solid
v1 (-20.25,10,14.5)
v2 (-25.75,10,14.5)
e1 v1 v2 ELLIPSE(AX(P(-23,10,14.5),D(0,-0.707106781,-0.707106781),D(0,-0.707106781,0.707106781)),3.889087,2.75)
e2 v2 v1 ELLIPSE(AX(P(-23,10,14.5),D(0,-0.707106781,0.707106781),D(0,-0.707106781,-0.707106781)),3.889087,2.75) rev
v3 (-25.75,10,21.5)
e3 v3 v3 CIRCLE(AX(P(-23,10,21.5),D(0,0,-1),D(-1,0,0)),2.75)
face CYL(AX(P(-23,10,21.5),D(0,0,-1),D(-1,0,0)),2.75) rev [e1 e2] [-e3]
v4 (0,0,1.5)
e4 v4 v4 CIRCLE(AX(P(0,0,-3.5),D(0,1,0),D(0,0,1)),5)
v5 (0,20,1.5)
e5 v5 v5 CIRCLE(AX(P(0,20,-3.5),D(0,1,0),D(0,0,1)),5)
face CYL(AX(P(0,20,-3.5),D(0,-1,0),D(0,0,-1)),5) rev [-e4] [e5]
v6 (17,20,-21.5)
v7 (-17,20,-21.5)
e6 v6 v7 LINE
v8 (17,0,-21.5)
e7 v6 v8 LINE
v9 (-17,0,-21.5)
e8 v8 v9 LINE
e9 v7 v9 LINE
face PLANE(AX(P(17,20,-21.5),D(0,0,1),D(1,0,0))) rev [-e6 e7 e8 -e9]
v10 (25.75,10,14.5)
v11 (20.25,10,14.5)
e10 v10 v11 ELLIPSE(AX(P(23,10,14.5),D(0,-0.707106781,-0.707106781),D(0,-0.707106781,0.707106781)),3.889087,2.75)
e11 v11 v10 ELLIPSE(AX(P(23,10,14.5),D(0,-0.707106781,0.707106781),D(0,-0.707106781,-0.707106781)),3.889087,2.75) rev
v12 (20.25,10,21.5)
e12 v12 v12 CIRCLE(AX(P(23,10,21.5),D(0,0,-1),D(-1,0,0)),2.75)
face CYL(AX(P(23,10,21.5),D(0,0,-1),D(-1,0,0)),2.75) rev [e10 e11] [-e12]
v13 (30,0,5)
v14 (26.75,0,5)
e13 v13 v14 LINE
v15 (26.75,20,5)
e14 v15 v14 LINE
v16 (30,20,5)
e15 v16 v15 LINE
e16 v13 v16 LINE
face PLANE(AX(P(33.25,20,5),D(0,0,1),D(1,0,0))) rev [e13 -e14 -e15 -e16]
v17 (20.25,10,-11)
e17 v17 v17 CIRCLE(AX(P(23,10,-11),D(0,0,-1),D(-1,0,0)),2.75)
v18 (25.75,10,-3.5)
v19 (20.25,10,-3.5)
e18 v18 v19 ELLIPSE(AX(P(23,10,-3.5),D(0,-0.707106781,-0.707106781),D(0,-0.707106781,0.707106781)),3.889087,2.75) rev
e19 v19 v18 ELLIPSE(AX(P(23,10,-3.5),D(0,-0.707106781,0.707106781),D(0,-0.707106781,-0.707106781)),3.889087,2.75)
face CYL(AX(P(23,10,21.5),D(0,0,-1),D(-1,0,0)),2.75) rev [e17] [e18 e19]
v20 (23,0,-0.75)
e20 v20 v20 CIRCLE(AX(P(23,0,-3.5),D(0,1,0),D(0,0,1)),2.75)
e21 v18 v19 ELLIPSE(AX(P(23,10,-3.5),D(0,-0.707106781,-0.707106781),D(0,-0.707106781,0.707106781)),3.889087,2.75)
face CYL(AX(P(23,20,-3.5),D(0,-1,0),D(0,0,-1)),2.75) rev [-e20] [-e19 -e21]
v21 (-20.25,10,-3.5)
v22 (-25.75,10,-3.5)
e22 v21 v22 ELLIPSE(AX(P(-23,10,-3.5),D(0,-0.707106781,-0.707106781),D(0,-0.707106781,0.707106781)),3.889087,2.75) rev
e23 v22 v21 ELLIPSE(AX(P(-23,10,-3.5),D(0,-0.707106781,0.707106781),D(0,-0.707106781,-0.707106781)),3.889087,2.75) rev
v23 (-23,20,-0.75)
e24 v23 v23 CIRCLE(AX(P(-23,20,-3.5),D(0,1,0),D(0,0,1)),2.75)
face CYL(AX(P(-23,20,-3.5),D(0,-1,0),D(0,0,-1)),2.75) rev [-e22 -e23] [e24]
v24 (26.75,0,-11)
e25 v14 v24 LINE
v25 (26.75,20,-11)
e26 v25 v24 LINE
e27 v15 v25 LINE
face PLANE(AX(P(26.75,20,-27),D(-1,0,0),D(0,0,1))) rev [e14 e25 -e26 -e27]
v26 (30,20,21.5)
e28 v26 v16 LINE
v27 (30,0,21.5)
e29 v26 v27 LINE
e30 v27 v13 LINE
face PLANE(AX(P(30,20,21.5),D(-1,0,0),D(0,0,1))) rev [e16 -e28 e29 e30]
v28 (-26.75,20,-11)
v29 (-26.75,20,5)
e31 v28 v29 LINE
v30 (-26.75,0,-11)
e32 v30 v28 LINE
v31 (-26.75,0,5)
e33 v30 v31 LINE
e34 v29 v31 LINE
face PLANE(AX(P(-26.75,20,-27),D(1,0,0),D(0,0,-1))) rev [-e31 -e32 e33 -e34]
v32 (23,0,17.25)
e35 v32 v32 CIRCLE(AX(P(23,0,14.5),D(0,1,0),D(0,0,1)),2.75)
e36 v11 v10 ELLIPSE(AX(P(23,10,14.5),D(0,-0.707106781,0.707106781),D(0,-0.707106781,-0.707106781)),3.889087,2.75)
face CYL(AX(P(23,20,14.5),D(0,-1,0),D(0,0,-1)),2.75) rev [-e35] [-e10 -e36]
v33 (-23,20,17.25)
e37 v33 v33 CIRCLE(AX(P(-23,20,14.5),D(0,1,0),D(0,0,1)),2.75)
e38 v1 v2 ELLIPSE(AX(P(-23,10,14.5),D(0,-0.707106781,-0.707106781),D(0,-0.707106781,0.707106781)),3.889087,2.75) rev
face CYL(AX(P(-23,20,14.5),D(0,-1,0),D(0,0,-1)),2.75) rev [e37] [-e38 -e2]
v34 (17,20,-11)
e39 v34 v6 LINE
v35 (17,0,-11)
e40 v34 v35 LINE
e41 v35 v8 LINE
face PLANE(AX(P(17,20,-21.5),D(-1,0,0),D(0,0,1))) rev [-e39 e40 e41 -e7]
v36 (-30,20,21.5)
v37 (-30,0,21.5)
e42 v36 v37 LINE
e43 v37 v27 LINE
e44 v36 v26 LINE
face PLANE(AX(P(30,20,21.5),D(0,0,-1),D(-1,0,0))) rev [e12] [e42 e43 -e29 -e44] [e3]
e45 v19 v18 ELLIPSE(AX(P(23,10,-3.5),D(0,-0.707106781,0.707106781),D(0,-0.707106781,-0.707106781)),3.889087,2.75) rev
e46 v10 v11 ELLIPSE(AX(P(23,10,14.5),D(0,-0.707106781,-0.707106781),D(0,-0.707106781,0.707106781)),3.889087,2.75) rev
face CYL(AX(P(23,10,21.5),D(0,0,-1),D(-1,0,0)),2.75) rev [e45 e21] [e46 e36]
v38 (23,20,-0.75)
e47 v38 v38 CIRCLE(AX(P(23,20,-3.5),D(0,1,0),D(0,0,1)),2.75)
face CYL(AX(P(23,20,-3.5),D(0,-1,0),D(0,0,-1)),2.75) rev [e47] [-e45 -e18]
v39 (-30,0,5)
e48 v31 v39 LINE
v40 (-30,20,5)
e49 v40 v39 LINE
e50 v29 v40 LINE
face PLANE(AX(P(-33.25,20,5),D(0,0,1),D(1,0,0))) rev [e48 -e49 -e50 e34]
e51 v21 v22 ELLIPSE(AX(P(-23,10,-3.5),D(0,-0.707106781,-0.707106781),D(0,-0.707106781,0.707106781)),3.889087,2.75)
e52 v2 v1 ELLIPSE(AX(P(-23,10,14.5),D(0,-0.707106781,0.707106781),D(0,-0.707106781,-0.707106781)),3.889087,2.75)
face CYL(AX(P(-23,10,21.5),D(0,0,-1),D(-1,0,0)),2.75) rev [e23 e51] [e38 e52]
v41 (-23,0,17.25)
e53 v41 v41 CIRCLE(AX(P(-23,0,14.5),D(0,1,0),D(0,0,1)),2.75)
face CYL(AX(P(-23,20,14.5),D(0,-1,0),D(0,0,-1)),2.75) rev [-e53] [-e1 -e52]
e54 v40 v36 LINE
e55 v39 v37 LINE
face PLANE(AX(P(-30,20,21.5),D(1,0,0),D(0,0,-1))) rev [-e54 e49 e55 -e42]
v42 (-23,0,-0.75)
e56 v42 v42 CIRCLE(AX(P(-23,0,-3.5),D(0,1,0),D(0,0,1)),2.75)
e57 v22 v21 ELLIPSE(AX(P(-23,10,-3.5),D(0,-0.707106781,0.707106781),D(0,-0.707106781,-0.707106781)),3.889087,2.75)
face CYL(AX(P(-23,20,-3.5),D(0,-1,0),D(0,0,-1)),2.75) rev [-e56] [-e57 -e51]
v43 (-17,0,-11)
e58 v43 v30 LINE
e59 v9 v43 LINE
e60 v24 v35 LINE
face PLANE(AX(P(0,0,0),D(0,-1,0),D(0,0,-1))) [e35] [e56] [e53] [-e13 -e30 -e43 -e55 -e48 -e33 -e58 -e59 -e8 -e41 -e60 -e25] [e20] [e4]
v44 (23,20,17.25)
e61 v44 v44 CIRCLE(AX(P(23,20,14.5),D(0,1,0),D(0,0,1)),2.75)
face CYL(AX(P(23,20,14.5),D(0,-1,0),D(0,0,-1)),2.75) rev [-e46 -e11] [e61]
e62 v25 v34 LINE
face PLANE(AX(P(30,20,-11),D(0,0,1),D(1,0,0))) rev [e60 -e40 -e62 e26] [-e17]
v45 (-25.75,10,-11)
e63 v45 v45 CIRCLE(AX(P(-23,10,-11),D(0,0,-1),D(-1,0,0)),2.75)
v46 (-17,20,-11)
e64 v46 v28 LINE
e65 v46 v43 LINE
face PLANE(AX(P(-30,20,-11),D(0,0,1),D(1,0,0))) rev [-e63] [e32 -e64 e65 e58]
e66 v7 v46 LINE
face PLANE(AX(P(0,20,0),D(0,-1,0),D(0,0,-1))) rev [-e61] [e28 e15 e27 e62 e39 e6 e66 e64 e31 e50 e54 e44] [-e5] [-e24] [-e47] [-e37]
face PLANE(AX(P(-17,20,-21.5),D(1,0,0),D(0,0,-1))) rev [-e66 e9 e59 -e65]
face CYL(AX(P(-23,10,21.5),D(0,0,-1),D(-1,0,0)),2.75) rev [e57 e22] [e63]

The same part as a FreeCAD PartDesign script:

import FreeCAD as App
import Part
import Sketcher
from FreeCAD import Vector
Q = App.Units.Quantity


def add_polygon(sketch, points):
    """Adds a closed chain of lines whose ends are joined by coincident constraints."""
    first, n = sketch.GeometryCount, len(points)
    for a, b in zip(points, points[1:] + points[:1]):
        sketch.addGeometry(Part.LineSegment(App.Vector(*a, 0), App.Vector(*b, 0)), False)
    for i in range(n):
        sketch.addConstraint(Sketcher.Constraint("Coincident", first + i, 2, first + (i + 1) % n, 1))

doc = App.newDocument("Part")
body = doc.addObject("PartDesign::Body", "Body")

sketch1 = body.newObject("Sketcher::SketchObject", "Sketch")
sketch1.AttachmentSupport = (doc.getObject("XZ_Plane"), [""])
sketch1.MapMode = "FlatFace"
add_polygon(sketch1, [(-30, 21.5), (30, 21.5), (30, -11), (17, -11), (17, -21.5), (-17, -21.5), (-17, -11), (-30, -11)])
sketch1.addGeometry(Part.Circle(Vector(23, 14.5, 0), Vector(0, 0, 1), 2.8), False)
sketch1.addGeometry(Part.Circle(Vector(-23, 14.5, 0), Vector(0, 0, 1), 2.8), False)
sketch1.addGeometry(Part.Circle(Vector(23, -3.5, 0), Vector(0, 0, 1), 2.8), False)
sketch1.addGeometry(Part.Circle(Vector(0, -3.5, 0), Vector(0, 0, 1), 5), False)
sketch1.addGeometry(Part.Circle(Vector(-23, -3.5, 0), Vector(0, 0, 1), 2.8), False)
sketch1.addConstraint([
    Sketcher.Constraint("Horizontal", 0),
    Sketcher.Constraint("Vertical", 1),
    Sketcher.Constraint("Horizontal", 2),
    Sketcher.Constraint("Vertical", 3),
    Sketcher.Constraint("Horizontal", 4),
    Sketcher.Constraint("Vertical", 5),
    Sketcher.Constraint("Horizontal", 6),
    Sketcher.Constraint("Vertical", 7),
    Sketcher.Constraint("Equal", 8, 9),
    Sketcher.Constraint("Equal", 9, 10),
    Sketcher.Constraint("Equal", 10, 12),
    Sketcher.Constraint("Symmetric", 8, 3, 9, 3, -2),
    Sketcher.Constraint("Symmetric", 10, 3, 12, 3, -2),
    Sketcher.Constraint("Symmetric", 2, 2, 5, 2, -2),
    Sketcher.Constraint("PointOnObject", 11, 3, -2),
    Sketcher.Constraint("Horizontal", 10, 3, 11, 3),
    Sketcher.Constraint("Vertical", 8, 3, 10, 3),
    Sketcher.Constraint("Equal", 2, 6),
    Sketcher.Constraint("Diameter", 11, Q("10 mm")),
    Sketcher.Constraint("Diameter", 8, Q("5.5 mm")),
    Sketcher.Constraint("DistanceX", 0, 1, 0, 2, Q("60 mm")),
    Sketcher.Constraint("DistanceX", 2, 2, 2, 1, Q("13 mm")),
    Sketcher.Constraint("DistanceY", 1, 2, 1, 1, Q("32.5 mm")),
    Sketcher.Constraint("DistanceY", 3, 2, 3, 1, Q("10.5 mm")),
    Sketcher.Constraint("DistanceX", -1, 1, 8, 3, Q("23 mm")),
    Sketcher.Constraint("DistanceY", 1, 2, -1, 1, Q("11 mm")),
    Sketcher.Constraint("DistanceY", 10, 3, 8, 3, Q("18 mm")),
    Sketcher.Constraint("DistanceY", 8, 3, 0, 2, Q("7 mm")),
])
pad1 = body.newObject("PartDesign::Pad", "Pad")
pad1.Profile = sketch1
pad1.Length = 20
pad1.Reversed = True

sketch2 = body.newObject("Sketcher::SketchObject", "Sketch001")
sketch2.AttachmentSupport = (doc.getObject("XY_Plane"), [""])
sketch2.MapMode = "FlatFace"
sketch2.AttachmentOffset = App.Placement(Vector(0, 0, -11), App.Rotation())
sketch2.addGeometry([
    Part.Circle(Vector(23, 10, 0), Vector(0, 0, 1), 2.8),
    Part.Circle(Vector(-23, 10, 0), Vector(0, 0, 1), 2.8),
], False)
sketch2.addConstraint([
    Sketcher.Constraint("Equal", 0, 1),
    Sketcher.Constraint("Symmetric", 0, 3, 1, 3, -2),
    Sketcher.Constraint("Diameter", 0, Q("5.5 mm")),
    Sketcher.Constraint("DistanceX", -1, 1, 0, 3, Q("23 mm")),
    Sketcher.Constraint("DistanceY", -1, 1, 0, 3, Q("10 mm")),
])
pocket1 = body.newObject("PartDesign::Pocket", "Pocket")
pocket1.Profile = sketch2
pocket1.Type = "ThroughAll"
pocket1.Reversed = True

sketch3 = body.newObject("Sketcher::SketchObject", "Sketch002")
sketch3.AttachmentSupport = (doc.getObject("XZ_Plane"), [""])
sketch3.MapMode = "FlatFace"
add_polygon(sketch3, [(27, 5), (27, -27), (33, -27), (33, 5)])
add_polygon(sketch3, [(-33, 5), (-33, -27), (-27, -27), (-27, 5)])
sketch3.addConstraint([
    Sketcher.Constraint("Vertical", 0),
    Sketcher.Constraint("Horizontal", 1),
    Sketcher.Constraint("Vertical", 2),
    Sketcher.Constraint("Horizontal", 3),
    Sketcher.Constraint("Vertical", 4),
    Sketcher.Constraint("Horizontal", 5),
    Sketcher.Constraint("Vertical", 6),
    Sketcher.Constraint("Horizontal", 7),
    Sketcher.Constraint("Symmetric", 1, 2, 4, 2, -2),
    Sketcher.Constraint("Symmetric", 3, 2, 6, 2, -2),
    Sketcher.Constraint("DistanceY", 0, 2, 0, 1, Q("32 mm")),
    Sketcher.Constraint("DistanceX", 1, 1, 1, 2, Q("6.5 mm")),
    Sketcher.Constraint("DistanceY", 0, 2, -1, 1, Q("27 mm")),
    Sketcher.Constraint("DistanceX", 4, 2, 0, 2, Q("60 mm")),
])
pocket2 = body.newObject("PartDesign::Pocket", "Pocket001")
pocket2.Profile = sketch3
pocket2.Type = "ThroughAll"

doc.recompute()
